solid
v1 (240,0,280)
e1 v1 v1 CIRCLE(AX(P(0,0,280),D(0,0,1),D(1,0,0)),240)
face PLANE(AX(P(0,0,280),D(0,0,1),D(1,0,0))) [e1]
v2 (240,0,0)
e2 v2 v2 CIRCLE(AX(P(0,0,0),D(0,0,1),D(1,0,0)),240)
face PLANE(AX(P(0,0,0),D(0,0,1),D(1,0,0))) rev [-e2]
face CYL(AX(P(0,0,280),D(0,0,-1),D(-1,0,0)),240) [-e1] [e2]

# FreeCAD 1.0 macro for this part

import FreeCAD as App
import Part
import Sketcher
from FreeCAD import Vector
Q = App.Units.Quantity

doc = App.newDocument("Part")
body = doc.addObject("PartDesign::Body", "Body")

# Sketch on XY plane
sketch1 = body.newObject("Sketcher::SketchObject", "Sketch")
sketch1.AttachmentSupport = (doc.getObject("XY_Plane"), [""])
sketch1.MapMode = "FlatFace"
sketch1.addGeometry(Part.Circle(Vector(0, 0, 0), Vector(0, 0, 1), 240), False)
sketch1.addConstraint([
    Sketcher.Constraint("Coincident", 0, 3, -1, 1),
    Sketcher.Constraint("Diameter", 0, Q("480 mm")),
])
pad1 = body.newObject("PartDesign::Pad", "Pad")
pad1.Profile = sketch1
pad1.Length = 280

doc.recompute()
